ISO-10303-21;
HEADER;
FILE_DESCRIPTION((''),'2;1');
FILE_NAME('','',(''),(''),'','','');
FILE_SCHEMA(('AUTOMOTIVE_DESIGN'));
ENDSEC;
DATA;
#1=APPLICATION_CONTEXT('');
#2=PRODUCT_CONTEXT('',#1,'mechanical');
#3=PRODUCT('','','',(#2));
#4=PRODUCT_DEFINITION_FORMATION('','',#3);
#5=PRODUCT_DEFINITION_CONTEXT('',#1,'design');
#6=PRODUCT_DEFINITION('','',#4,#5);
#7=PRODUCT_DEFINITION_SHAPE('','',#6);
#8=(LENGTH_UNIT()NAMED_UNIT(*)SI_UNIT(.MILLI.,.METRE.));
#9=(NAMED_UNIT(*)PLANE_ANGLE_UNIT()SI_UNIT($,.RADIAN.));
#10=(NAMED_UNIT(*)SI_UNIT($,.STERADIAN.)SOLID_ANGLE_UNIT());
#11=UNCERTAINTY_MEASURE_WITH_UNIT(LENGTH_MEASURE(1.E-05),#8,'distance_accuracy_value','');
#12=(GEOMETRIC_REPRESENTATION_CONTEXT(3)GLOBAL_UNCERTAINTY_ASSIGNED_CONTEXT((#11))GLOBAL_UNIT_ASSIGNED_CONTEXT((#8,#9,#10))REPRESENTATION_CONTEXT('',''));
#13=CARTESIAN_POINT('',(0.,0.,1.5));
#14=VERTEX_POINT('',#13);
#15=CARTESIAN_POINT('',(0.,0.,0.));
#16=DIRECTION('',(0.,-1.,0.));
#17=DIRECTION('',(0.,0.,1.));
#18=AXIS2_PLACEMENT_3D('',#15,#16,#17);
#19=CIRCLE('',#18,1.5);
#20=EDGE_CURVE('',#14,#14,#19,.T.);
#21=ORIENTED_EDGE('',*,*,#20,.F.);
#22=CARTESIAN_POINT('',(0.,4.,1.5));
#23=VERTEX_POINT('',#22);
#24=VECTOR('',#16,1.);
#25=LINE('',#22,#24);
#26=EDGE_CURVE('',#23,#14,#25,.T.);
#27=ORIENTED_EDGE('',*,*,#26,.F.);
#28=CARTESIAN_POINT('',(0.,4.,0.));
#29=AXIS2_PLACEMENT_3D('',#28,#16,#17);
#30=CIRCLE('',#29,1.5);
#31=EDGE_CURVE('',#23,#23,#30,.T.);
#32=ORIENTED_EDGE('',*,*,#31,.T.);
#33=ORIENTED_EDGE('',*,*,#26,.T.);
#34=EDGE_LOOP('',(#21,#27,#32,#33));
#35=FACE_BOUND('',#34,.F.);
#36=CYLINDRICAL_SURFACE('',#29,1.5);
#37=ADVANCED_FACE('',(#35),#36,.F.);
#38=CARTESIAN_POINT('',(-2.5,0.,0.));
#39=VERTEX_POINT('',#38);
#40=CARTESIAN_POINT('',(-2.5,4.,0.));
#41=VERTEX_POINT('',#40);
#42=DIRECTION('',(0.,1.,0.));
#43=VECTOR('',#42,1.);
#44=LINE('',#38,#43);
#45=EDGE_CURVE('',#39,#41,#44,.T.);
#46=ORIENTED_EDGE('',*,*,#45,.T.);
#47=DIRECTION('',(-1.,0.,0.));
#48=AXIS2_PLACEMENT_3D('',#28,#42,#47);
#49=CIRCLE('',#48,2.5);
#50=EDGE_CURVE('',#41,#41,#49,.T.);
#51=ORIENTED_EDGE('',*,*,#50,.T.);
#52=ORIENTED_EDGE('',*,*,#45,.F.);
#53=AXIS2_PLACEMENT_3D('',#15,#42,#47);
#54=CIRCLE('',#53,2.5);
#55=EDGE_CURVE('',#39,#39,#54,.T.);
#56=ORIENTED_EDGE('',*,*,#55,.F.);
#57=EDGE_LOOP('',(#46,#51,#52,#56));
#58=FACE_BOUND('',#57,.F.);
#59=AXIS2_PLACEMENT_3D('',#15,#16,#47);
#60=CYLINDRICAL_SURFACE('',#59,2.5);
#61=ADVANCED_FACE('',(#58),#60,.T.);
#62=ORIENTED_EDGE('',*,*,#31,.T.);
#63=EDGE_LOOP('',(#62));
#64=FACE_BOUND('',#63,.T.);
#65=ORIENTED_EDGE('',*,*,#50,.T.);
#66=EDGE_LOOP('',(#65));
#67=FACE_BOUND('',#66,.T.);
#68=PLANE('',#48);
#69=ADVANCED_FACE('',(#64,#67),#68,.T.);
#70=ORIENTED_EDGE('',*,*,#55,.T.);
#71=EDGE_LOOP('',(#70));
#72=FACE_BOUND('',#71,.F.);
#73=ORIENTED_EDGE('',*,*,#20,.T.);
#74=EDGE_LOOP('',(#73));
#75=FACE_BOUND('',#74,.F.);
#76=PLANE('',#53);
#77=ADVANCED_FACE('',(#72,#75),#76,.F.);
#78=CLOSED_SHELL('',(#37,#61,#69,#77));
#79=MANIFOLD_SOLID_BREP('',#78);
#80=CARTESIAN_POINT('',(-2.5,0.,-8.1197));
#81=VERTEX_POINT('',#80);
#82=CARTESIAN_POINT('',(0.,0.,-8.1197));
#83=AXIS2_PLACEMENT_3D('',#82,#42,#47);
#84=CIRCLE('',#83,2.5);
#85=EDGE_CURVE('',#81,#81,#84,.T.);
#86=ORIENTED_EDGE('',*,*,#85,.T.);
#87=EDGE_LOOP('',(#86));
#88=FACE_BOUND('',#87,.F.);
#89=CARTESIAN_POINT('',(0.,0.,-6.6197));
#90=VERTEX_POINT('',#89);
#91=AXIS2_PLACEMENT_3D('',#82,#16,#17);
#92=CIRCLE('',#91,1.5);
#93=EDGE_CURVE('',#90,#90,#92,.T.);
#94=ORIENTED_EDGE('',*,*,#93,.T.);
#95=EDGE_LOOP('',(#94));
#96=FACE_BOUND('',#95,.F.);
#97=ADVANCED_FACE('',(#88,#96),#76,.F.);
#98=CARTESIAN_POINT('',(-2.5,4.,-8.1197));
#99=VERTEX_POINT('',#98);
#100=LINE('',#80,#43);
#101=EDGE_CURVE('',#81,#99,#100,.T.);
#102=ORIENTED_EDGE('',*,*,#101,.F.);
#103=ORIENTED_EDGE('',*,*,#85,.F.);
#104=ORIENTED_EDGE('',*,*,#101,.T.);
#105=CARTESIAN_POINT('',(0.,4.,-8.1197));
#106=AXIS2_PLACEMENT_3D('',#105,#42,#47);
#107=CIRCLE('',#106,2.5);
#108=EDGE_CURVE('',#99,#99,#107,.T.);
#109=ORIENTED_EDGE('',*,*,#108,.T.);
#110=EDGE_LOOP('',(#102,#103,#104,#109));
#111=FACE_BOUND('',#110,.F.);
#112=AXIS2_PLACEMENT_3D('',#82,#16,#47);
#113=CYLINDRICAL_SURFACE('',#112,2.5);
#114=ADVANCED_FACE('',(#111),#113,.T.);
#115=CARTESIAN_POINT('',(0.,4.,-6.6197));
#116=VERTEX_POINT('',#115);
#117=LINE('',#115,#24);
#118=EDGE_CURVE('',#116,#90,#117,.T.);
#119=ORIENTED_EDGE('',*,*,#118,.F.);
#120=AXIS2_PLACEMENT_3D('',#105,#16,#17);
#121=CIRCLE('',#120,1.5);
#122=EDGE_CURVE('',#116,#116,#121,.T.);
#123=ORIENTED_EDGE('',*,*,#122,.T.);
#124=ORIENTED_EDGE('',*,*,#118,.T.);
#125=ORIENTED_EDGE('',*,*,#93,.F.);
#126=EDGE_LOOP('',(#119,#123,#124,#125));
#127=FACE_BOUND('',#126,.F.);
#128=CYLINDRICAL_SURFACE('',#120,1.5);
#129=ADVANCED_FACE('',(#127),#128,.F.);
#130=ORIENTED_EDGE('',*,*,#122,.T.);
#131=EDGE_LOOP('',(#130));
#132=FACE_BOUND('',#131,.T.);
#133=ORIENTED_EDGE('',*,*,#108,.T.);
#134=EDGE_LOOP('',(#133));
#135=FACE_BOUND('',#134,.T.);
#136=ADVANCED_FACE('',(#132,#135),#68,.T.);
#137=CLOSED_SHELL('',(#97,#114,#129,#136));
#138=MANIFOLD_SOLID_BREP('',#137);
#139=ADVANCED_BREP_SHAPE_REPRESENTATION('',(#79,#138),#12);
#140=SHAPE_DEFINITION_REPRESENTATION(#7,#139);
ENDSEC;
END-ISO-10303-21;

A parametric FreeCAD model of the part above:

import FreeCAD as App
import Part
import Sketcher

V = App.Vector
Q = App.Units.Quantity

doc = App.newDocument("Part")
body = doc.addObject("PartDesign::Body", "Body")
body.AllowCompound = True

# Sketch on XZ plane
sketch1 = doc.addObject("Sketcher::SketchObject", "Sketch")
body.addObject(sketch1)
sketch1.AttachmentSupport = (doc.XZ_Plane, [""])
sketch1.MapMode = "FlatFace"
sketch1.addGeometry([
    Part.Circle(V(0, 0, 0), V(0, 0, 1), 2.5),
    Part.Circle(V(0, -8.1, 0), V(0, 0, 1), 2.5),
], False)
sketch1.addConstraint([
    Sketcher.Constraint("Coincident", 0, 3, -1, 1),
    Sketcher.Constraint("Equal", 0, 1),
    Sketcher.Constraint("PointOnObject", 1, 3, -2),
    Sketcher.Constraint("Diameter", 0, Q("5 mm")),
    Sketcher.Constraint("DistanceY", 1, 3, -1, 1, Q("8.1197 mm")),
])
pad1 = doc.addObject("PartDesign::Pad", "Pad")
body.addObject(pad1)
pad1.Profile = sketch1
pad1.Length = 4
pad1.Reversed = True

# Sketch on XZ plane
sketch2 = doc.addObject("Sketcher::SketchObject", "Sketch001")
body.addObject(sketch2)
sketch2.AttachmentSupport = (doc.XZ_Plane, [""])
sketch2.MapMode = "FlatFace"
sketch2.AttachmentOffset = App.Placement(V(0, 0, -4), App.Rotation())
sketch2.addGeometry([
    Part.Circle(V(0, 0, 0), V(0, 0, 1), 1.5),
    Part.Circle(V(0, -8.1, 0), V(0, 0, 1), 1.5),
], False)
sketch2.addConstraint([
    Sketcher.Constraint("Coincident", 0, 3, -1, 1),
    Sketcher.Constraint("Equal", 0, 1),
    Sketcher.Constraint("PointOnObject", 1, 3, -2),
    Sketcher.Constraint("Diameter", 0, Q("3 mm")),
    Sketcher.Constraint("DistanceY", 1, 3, -1, 1, Q("8.1197 mm")),
])
doc.recompute()
hole = doc.addObject("PartDesign::Hole", "Hole")
body.addObject(hole)
hole.Profile = sketch2
hole.ThreadType = "None"
hole.Diameter = 3
hole.DepthType = "ThroughAll"
hole.Reversed = True

doc.recompute()
